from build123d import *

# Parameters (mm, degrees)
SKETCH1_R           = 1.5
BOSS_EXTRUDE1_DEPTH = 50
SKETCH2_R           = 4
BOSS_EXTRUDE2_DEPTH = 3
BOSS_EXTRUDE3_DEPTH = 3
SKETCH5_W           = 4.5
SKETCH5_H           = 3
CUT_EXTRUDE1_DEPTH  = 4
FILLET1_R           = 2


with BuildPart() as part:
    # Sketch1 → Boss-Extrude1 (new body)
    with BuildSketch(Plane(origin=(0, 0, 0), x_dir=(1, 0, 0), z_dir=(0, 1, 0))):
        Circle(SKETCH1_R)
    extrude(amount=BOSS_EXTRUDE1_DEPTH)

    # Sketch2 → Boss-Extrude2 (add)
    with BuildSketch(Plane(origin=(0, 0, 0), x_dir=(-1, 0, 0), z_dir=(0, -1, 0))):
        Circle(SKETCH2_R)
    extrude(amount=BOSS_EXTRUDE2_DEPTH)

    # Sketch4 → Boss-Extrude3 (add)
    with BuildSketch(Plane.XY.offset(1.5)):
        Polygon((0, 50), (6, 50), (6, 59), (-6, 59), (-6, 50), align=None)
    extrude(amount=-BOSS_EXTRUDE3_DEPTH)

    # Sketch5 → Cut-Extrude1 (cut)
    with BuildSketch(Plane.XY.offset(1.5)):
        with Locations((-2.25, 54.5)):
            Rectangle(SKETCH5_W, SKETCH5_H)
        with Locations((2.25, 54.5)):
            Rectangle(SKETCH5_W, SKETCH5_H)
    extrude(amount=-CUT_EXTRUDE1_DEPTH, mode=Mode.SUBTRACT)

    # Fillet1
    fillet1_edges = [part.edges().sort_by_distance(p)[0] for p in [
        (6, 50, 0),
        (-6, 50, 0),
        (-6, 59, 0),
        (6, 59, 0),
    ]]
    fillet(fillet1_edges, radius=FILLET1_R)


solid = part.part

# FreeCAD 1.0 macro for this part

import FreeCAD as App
import Part
import Sketcher
from FreeCAD import Vector


def edges_at(feature, points):
    """Names of the edges that pass closest to the given points."""
    edges = feature.Shape.Edges
    near = lambda p: min(range(len(edges)), key=lambda i: edges[i].distToShape(Part.Vertex(*p))[0])
    return sorted({f"Edge{near(p) + 1}" for p in points})


def add_polygon(sketch, points):
    """Adds a closed chain of lines whose ends are joined by coincident constraints."""
    first, n = sketch.GeometryCount, len(points)
    for a, b in zip(points, points[1:] + points[:1]):
        sketch.addGeometry(Part.LineSegment(App.Vector(*a, 0), App.Vector(*b, 0)), False)
    for i in range(n):
        sketch.addConstraint(Sketcher.Constraint("Coincident", first + i, 2, first + (i + 1) % n, 1))

doc = App.newDocument("Part")
params = doc.addObject("Spreadsheet::Sheet", "Params")
for row, (alias, value) in enumerate([
    ("sketch1_diameter", "3 mm"),
    ("pad1_length", "50 mm"),
    ("sketch2_diameter", "8 mm"),
    ("pad2_length", "3 mm"),
    ("sketch3_width", "12 mm"),
    ("sketch3_height", "9 mm"),
    ("pad3_length", "3 mm"),
    ("sketch4_width", "9 mm"),
    ("sketch4_height", "3 mm"),
    ("pocket1_length", "4 mm"),
    ("fillet_radius", "2 mm"),
], start=1):
    params.set(f"A{row}", alias)
    params.set(f"B{row}", "=" + value)
    params.setAlias(f"B{row}", alias)

body = doc.addObject("PartDesign::Body", "Body")

sketch1 = body.newObject("Sketcher::SketchObject", "Sketch")
sketch1.AttachmentSupport = (doc.getObject("XZ_Plane"), [""])
sketch1.MapMode = "FlatFace"
sketch1.addGeometry(Part.Circle(Vector(0, 0, 0), Vector(0, 0, 1), 1.5), False)
sketch1.addConstraint([
    Sketcher.Constraint("Coincident", 0, 3, -1, 1),
    Sketcher.Constraint("Diameter", 0, 3.0),
])
sketch1.setExpression("Constraints[1]", "Params.sketch1_diameter")
pad1 = body.newObject("PartDesign::Pad", "Pad")
pad1.Profile = sketch1
pad1.setExpression("Length", "Params.pad1_length")
pad1.Reversed = True

sketch2 = body.newObject("Sketcher::SketchObject", "Sketch001")
sketch2.AttachmentSupport = (doc.getObject("XZ_Plane"), [""])
sketch2.MapMode = "FlatFace"
sketch2.addGeometry(Part.Circle(Vector(0, 0, 0), Vector(0, 0, 1), 4), False)
sketch2.addConstraint([
    Sketcher.Constraint("Coincident", 0, 3, -1, 1),
    Sketcher.Constraint("Diameter", 0, 8.0),
])
sketch2.setExpression("Constraints[1]", "Params.sketch2_diameter")
pad2 = body.newObject("PartDesign::Pad", "Pad001")
pad2.Profile = sketch2
pad2.setExpression("Length", "Params.pad2_length")

sketch3 = body.newObject("Sketcher::SketchObject", "Sketch002")
sketch3.AttachmentSupport = (doc.getObject("XY_Plane"), [""])
sketch3.MapMode = "FlatFace"
sketch3.AttachmentOffset = App.Placement(Vector(0, 0, 1.5), App.Rotation())
add_polygon(sketch3, [(6, 50), (6, 59), (-6, 59), (-6, 50)])
sketch3.addConstraint([
    Sketcher.Constraint("Vertical", 0),
    Sketcher.Constraint("Horizontal", 1),
    Sketcher.Constraint("Vertical", 2),
    Sketcher.Constraint("Horizontal", 3),
    Sketcher.Constraint("DistanceX", 1, 2, 1, 1, 12.0),
    Sketcher.Constraint("DistanceY", 0, 1, 0, 2, 9.0),
    Sketcher.Constraint("DistanceX", -1, 1, 0, 2, 6.0),
    Sketcher.Constraint("DistanceY", -1, 1, 0, 2, 59.0),
])
sketch3.setExpression("Constraints[8]", "Params.sketch3_width")
sketch3.setExpression("Constraints[9]", "Params.sketch3_height")
pad3 = body.newObject("PartDesign::Pad", "Pad002")
pad3.Profile = sketch3
pad3.setExpression("Length", "Params.pad3_length")
pad3.Reversed = True

sketch4 = body.newObject("Sketcher::SketchObject", "Sketch003")
sketch4.AttachmentSupport = (doc.getObject("XY_Plane"), [""])
sketch4.MapMode = "FlatFace"
sketch4.AttachmentOffset = App.Placement(Vector(0, 0, 1.5), App.Rotation())
add_polygon(sketch4, [(-4.5, 56), (-4.5, 53), (4.5, 53), (4.5, 56)])
sketch4.addConstraint([
    Sketcher.Constraint("Vertical", 0),
    Sketcher.Constraint("Horizontal", 1),
    Sketcher.Constraint("Vertical", 2),
    Sketcher.Constraint("Horizontal", 3),
    Sketcher.Constraint("DistanceX", 1, 1, 1, 2, 9.0),
    Sketcher.Constraint("DistanceY", 0, 2, 0, 1, 3.0),
    Sketcher.Constraint("DistanceY", -1, 1, 0, 2, 53.0),
    Sketcher.Constraint("DistanceX", 0, 2, -1, 1, 4.5),
])
sketch4.setExpression("Constraints[8]", "Params.sketch4_width")
sketch4.setExpression("Constraints[9]", "Params.sketch4_height")
pocket1 = body.newObject("PartDesign::Pocket", "Pocket")
pocket1.Profile = sketch4
pocket1.setExpression("Length", "Params.pocket1_length")
doc.recompute()

fillet = body.newObject("PartDesign::Fillet", "Fillet")
fillet.Base = (pocket1, edges_at(pocket1, [
    (6, 50, 0),
    (-6, 50, 0),
    (-6, 59, 0),
    (6, 59, 0),
]))
fillet.setExpression("Radius", "Params.fillet_radius")

doc.recompute()
